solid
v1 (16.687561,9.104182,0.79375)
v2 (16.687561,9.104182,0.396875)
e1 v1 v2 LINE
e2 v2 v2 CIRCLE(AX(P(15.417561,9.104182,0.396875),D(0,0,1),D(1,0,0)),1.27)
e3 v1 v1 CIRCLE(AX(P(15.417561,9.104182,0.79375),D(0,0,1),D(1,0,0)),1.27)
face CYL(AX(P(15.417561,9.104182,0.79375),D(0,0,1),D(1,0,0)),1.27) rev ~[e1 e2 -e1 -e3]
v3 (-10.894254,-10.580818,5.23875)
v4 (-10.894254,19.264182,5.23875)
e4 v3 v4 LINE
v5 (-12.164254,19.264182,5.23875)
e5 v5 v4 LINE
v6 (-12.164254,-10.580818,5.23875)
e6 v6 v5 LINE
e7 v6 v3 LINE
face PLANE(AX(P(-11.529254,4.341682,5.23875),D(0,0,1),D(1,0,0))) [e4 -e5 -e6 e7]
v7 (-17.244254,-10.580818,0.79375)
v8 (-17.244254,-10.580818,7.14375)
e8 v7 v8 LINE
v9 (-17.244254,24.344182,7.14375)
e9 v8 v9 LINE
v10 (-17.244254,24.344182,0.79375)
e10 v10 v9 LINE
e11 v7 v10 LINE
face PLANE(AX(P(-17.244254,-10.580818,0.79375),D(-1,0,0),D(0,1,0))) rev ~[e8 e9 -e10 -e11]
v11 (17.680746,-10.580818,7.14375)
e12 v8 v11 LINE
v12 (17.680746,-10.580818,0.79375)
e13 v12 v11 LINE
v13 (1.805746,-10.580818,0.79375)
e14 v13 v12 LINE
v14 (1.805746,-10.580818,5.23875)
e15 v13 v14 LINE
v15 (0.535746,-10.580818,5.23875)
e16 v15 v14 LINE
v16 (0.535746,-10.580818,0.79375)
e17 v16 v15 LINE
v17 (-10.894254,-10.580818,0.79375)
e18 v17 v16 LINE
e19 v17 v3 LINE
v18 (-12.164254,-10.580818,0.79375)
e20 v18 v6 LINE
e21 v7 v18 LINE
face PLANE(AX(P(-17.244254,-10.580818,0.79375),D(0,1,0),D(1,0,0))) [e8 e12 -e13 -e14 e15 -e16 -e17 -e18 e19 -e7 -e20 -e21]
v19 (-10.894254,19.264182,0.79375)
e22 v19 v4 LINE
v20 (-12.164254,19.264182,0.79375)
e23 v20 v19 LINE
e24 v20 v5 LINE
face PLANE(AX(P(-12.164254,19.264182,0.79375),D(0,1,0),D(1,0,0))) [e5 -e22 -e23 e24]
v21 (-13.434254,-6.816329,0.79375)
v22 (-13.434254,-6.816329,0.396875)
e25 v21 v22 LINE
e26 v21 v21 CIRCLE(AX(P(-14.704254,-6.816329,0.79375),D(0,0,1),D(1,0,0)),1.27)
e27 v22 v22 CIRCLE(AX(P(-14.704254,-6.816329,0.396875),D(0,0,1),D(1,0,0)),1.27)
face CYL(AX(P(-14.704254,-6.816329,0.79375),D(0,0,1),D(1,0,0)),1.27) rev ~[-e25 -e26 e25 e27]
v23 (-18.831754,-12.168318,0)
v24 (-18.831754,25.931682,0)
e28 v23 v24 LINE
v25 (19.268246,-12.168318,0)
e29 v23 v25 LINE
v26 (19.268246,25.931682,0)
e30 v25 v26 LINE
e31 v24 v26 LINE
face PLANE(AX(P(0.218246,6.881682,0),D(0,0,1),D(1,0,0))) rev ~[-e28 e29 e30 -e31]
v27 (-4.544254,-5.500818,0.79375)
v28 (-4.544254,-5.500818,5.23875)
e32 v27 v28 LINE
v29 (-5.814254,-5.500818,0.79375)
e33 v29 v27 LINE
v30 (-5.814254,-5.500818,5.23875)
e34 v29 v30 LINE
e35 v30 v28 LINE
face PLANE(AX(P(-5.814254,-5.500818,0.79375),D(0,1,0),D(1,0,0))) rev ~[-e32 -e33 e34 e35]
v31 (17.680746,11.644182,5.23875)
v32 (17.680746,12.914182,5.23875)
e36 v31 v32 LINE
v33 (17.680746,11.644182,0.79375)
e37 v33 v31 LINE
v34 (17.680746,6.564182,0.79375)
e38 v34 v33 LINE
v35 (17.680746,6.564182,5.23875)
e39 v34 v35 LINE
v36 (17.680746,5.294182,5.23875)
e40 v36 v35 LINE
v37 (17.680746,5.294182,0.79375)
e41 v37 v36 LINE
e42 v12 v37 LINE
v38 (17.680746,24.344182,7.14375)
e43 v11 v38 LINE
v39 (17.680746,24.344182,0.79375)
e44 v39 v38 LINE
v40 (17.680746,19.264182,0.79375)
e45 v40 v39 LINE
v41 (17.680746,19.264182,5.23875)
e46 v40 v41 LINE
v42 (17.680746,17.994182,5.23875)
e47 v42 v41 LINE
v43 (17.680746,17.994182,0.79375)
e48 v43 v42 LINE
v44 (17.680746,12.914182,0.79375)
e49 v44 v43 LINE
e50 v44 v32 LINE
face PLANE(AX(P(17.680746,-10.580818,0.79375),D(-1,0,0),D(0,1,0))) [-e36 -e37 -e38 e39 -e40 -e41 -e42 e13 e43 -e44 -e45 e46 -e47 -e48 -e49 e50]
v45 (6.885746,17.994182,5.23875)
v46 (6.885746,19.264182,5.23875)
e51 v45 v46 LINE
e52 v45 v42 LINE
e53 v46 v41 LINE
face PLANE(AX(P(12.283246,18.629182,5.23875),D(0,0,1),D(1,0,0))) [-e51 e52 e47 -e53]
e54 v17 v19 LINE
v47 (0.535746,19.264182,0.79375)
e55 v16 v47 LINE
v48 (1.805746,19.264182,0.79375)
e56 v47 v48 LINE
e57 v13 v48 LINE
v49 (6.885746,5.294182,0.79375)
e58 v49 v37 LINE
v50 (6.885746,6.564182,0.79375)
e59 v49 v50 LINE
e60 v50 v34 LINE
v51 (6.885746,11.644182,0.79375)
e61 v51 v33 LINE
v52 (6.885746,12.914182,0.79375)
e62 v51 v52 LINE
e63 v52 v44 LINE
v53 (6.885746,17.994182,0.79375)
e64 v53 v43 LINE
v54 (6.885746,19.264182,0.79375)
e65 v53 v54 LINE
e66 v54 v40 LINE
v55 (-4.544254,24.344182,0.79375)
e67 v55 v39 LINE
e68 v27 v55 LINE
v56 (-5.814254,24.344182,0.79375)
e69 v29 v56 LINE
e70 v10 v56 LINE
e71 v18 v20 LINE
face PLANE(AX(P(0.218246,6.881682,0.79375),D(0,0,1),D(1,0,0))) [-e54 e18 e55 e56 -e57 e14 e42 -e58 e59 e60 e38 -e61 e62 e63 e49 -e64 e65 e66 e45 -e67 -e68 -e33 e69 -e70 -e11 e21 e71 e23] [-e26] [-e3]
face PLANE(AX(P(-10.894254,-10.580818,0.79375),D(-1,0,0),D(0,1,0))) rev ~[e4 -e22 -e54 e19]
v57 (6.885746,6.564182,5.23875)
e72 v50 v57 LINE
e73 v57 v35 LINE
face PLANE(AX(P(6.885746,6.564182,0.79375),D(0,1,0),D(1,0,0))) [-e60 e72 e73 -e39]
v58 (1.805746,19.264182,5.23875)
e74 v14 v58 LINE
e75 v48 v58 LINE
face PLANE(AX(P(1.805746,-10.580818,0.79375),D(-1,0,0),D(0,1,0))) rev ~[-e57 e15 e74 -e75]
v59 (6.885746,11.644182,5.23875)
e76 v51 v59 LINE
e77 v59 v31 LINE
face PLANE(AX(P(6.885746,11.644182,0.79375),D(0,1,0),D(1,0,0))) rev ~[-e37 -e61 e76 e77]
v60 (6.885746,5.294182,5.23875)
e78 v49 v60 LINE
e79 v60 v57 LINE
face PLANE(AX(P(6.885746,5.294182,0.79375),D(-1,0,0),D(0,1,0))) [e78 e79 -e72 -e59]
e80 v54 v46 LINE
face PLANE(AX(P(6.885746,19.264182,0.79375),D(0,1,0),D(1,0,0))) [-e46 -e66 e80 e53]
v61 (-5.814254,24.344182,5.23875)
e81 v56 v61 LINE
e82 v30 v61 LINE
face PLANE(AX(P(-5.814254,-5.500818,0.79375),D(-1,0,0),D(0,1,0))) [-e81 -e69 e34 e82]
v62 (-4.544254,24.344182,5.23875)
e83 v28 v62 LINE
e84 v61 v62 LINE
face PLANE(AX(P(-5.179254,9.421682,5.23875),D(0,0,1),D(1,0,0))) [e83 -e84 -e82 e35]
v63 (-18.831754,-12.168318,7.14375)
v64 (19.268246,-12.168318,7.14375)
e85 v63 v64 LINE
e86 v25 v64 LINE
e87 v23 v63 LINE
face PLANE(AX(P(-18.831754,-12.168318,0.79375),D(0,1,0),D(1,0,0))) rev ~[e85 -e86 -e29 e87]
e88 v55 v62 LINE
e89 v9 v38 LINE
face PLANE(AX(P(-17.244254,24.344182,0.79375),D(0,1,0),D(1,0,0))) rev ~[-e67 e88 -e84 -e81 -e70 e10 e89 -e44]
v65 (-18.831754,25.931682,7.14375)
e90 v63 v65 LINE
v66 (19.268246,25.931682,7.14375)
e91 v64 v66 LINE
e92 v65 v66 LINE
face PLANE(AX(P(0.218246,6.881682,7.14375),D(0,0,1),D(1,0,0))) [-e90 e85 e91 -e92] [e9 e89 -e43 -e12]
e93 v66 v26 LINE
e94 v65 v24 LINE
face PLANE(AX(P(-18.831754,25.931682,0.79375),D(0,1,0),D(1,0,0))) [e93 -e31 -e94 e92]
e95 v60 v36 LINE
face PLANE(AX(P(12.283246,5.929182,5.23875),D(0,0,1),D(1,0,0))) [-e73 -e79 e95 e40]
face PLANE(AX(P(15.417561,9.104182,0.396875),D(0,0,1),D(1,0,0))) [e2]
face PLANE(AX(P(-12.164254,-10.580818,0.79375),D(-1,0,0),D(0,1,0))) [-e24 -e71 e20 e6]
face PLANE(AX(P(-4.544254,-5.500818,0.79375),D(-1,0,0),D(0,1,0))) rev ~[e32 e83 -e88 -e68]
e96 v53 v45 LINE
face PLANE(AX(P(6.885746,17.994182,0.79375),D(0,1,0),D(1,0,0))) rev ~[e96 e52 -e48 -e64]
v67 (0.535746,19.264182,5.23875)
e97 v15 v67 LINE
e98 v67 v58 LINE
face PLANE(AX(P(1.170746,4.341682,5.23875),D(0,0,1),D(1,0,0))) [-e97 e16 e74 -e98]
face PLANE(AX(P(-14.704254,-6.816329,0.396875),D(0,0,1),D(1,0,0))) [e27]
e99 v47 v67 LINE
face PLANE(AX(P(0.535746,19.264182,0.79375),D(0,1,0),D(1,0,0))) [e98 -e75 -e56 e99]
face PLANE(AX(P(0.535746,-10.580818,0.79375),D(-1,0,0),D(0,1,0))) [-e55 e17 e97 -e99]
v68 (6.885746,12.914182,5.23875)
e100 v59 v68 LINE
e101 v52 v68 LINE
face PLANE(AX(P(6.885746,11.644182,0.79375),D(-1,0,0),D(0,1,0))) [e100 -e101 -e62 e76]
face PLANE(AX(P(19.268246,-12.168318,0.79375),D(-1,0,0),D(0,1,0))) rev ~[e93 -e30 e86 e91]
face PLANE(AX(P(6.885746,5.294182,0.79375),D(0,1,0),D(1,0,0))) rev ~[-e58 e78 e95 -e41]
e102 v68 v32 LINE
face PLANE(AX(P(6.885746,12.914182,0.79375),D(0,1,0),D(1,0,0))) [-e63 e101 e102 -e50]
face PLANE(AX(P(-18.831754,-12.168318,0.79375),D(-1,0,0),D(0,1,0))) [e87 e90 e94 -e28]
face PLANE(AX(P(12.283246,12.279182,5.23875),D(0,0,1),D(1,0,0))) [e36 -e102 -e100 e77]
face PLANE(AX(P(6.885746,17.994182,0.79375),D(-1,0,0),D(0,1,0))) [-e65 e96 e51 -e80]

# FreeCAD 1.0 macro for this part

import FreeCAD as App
import Part
import Sketcher
from FreeCAD import Vector
Q = App.Units.Quantity

doc = App.newDocument("Part")
body = doc.addObject("PartDesign::Body", "Body")

# Sketch on XY plane
sketch1 = body.newObject("Sketcher::SketchObject", "Sketch")
sketch1.AttachmentSupport = (doc.getObject("XY_Plane"), [""])
sketch1.MapMode = "FlatFace"
sketch1.addGeometry([
    Part.LineSegment(Vector(-19, 26, 0), Vector(-19, -12, 0)),
    Part.LineSegment(Vector(-19, -12, 0), Vector(19, -12, 0)),
    Part.LineSegment(Vector(19, -12, 0), Vector(19, 26, 0)),
    Part.LineSegment(Vector(19, 26, 0), Vector(-19, 26, 0)),
], False)
sketch1.addConstraint([
    Sketcher.Constraint("Coincident", 0, 2, 1, 1),
    Sketcher.Constraint("Coincident", 1, 2, 2, 1),
    Sketcher.Constraint("Coincident", 2, 2, 3, 1),
    Sketcher.Constraint("Coincident", 3, 2, 0, 1),
    Sketcher.Constraint("Vertical", 0),
    Sketcher.Constraint("Horizontal", 1),
    Sketcher.Constraint("Vertical", 2),
    Sketcher.Constraint("Horizontal", 3),
    Sketcher.Constraint("Equal", 3, 0),
    Sketcher.Constraint("DistanceX", 1, 1, 1, 2, Q("1.5 in")),
    Sketcher.Constraint("DistanceY", -1, 1, 2, 2, 25.931682),
    Sketcher.Constraint("DistanceX", 0, 2, -1, 1, 18.831754),
])
pad1 = body.newObject("PartDesign::Pad", "Pad")
pad1.Profile = sketch1
pad1.Length = Q("0.03125 in")

# Sketch on XY plane
sketch2 = body.newObject("Sketcher::SketchObject", "Sketch001")
sketch2.AttachmentSupport = (doc.getObject("XY_Plane"), [""])
sketch2.MapMode = "FlatFace"
sketch2.AttachmentOffset = App.Placement(Vector(0, 0, 0.03125 * 25.4), App.Rotation())
sketch2.addGeometry([
    Part.LineSegment(Vector(-19, 26, 0), Vector(-19, -12, 0)),  # 0
    Part.LineSegment(Vector(-19, -12, 0), Vector(19, -12, 0)),  # 1
    Part.LineSegment(Vector(19, -12, 0), Vector(19, 26, 0)),  # 2
    Part.LineSegment(Vector(19, 26, 0), Vector(-19, 26, 0)),  # 3
    Part.LineSegment(Vector(18, -11, 0), Vector(-17, -11, 0)),  # 4
    Part.LineSegment(Vector(-17, -11, 0), Vector(-17, 24, 0)),  # 5
    Part.LineSegment(Vector(-17, 24, 0), Vector(18, 24, 0)),  # 6
    Part.LineSegment(Vector(18, 24, 0), Vector(18, -11, 0)),  # 7
], False)
sketch2.addConstraint([
    Sketcher.Constraint("Coincident", 0, 2, 1, 1),
    Sketcher.Constraint("Coincident", 1, 2, 2, 1),
    Sketcher.Constraint("Coincident", 2, 2, 3, 1),
    Sketcher.Constraint("Coincident", 3, 2, 0, 1),
    Sketcher.Constraint("Coincident", 4, 2, 5, 1),
    Sketcher.Constraint("Coincident", 5, 2, 6, 1),
    Sketcher.Constraint("Coincident", 6, 2, 7, 1),
    Sketcher.Constraint("Coincident", 7, 2, 4, 1),
    Sketcher.Constraint("Vertical", 0),
    Sketcher.Constraint("Horizontal", 1),
    Sketcher.Constraint("Vertical", 2),
    Sketcher.Constraint("Horizontal", 3),
    Sketcher.Constraint("Horizontal", 4),
    Sketcher.Constraint("Vertical", 5),
    Sketcher.Constraint("Horizontal", 6),
    Sketcher.Constraint("Vertical", 7),
    Sketcher.Constraint("Equal", 3, 0),
    Sketcher.Constraint("Equal", 6, 5),
    Sketcher.Constraint("DistanceX", 1, 1, 1, 2, Q("1.5 in")),
    Sketcher.Constraint("DistanceX", 4, 2, 4, 1, Q("1.375 in")),
    Sketcher.Constraint("DistanceX", 0, 2, 4, 2, Q("0.0625 in")),
    Sketcher.Constraint("DistanceY", 0, 2, 4, 2, Q("0.0625 in")),
    Sketcher.Constraint("DistanceY", -1, 1, 2, 2, 25.931682),
    Sketcher.Constraint("DistanceX", 0, 2, -1, 1, 18.831754),
])
pad2 = body.newObject("PartDesign::Pad", "Pad001")
pad2.Profile = sketch2
pad2.Length = Q("0.25 in")

# Sketch on XY plane
sketch3 = body.newObject("Sketcher::SketchObject", "Sketch002")
sketch3.AttachmentSupport = (doc.getObject("XY_Plane"), [""])
sketch3.MapMode = "FlatFace"
sketch3.AttachmentOffset = App.Placement(Vector(0, 0, 0.03125 * 25.4), App.Rotation())
sketch3.addGeometry([
    Part.LineSegment(Vector(-12.2, 19.3, 0), Vector(-12.2, -10.6, 0)),  # 0
    Part.LineSegment(Vector(-12.2, -10.6, 0), Vector(-10.9, -10.6, 0)),  # 1
    Part.LineSegment(Vector(-10.9, -10.6, 0), Vector(-10.9, 19.3, 0)),  # 2
    Part.LineSegment(Vector(-10.9, 19.3, 0), Vector(-12.2, 19.3, 0)),  # 3
    Part.LineSegment(Vector(-5.8, 24.3, 0), Vector(-5.8, -5.5, 0)),  # 4
    Part.LineSegment(Vector(-5.8, -5.5, 0), Vector(-4.5, -5.5, 0)),  # 5
    Part.LineSegment(Vector(-4.5, -5.5, 0), Vector(-4.5, 24.3, 0)),  # 6
    Part.LineSegment(Vector(-4.5, 24.3, 0), Vector(-5.8, 24.3, 0)),  # 7
    Part.LineSegment(Vector(0.5, 19.3, 0), Vector(0.5, -10.6, 0)),  # 8
    Part.LineSegment(Vector(0.5, -10.6, 0), Vector(1.8, -10.6, 0)),  # 9
    Part.LineSegment(Vector(1.8, -10.6, 0), Vector(1.8, 19.3, 0)),  # 10
    Part.LineSegment(Vector(1.8, 19.3, 0), Vector(0.5, 19.3, 0)),  # 11
    Part.LineSegment(Vector(6.9, 12.9, 0), Vector(6.9, 11.6, 0)),  # 12
    Part.LineSegment(Vector(6.9, 11.6, 0), Vector(17.7, 11.6, 0)),  # 13
    Part.LineSegment(Vector(17.7, 11.6, 0), Vector(17.7, 12.9, 0)),  # 14
    Part.LineSegment(Vector(17.7, 12.9, 0), Vector(6.9, 12.9, 0)),  # 15
    Part.LineSegment(Vector(6.9, 19.3, 0), Vector(6.9, 18, 0)),  # 16
    Part.LineSegment(Vector(6.9, 18, 0), Vector(17.7, 18, 0)),  # 17
    Part.LineSegment(Vector(17.7, 18, 0), Vector(17.7, 19.3, 0)),  # 18
    Part.LineSegment(Vector(17.7, 19.3, 0), Vector(6.9, 19.3, 0)),  # 19
], False)
sketch3.addConstraint([
    Sketcher.Constraint("Coincident", 0, 2, 1, 1),
    Sketcher.Constraint("Coincident", 1, 2, 2, 1),
    Sketcher.Constraint("Coincident", 2, 2, 3, 1),
    Sketcher.Constraint("Coincident", 3, 2, 0, 1),
    Sketcher.Constraint("Coincident", 4, 2, 5, 1),
    Sketcher.Constraint("Coincident", 5, 2, 6, 1),
    Sketcher.Constraint("Coincident", 6, 2, 7, 1),
    Sketcher.Constraint("Coincident", 7, 2, 4, 1),
    Sketcher.Constraint("Coincident", 8, 2, 9, 1),
    Sketcher.Constraint("Coincident", 9, 2, 10, 1),
    Sketcher.Constraint("Coincident", 10, 2, 11, 1),
    Sketcher.Constraint("Coincident", 11, 2, 8, 1),
    Sketcher.Constraint("Coincident", 12, 2, 13, 1),
    Sketcher.Constraint("Coincident", 13, 2, 14, 1),
    Sketcher.Constraint("Coincident", 14, 2, 15, 1),
    Sketcher.Constraint("Coincident", 15, 2, 12, 1),
    Sketcher.Constraint("Coincident", 16, 2, 17, 1),
    Sketcher.Constraint("Coincident", 17, 2, 18, 1),
    Sketcher.Constraint("Coincident", 18, 2, 19, 1),
    Sketcher.Constraint("Coincident", 19, 2, 16, 1),
    Sketcher.Constraint("Vertical", 0),
    Sketcher.Constraint("Horizontal", 1),
    Sketcher.Constraint("Vertical", 2),
    Sketcher.Constraint("Horizontal", 3),
    Sketcher.Constraint("Vertical", 4),
    Sketcher.Constraint("Horizontal", 5),
    Sketcher.Constraint("Vertical", 6),
    Sketcher.Constraint("Horizontal", 7),
    Sketcher.Constraint("Vertical", 8),
    Sketcher.Constraint("Horizontal", 9),
    Sketcher.Constraint("Vertical", 10),
    Sketcher.Constraint("Horizontal", 11),
    Sketcher.Constraint("Vertical", 12),
    Sketcher.Constraint("Horizontal", 13),
    Sketcher.Constraint("Vertical", 14),
    Sketcher.Constraint("Horizontal", 15),
    Sketcher.Constraint("Vertical", 16),
    Sketcher.Constraint("Horizontal", 17),
    Sketcher.Constraint("Vertical", 18),
    Sketcher.Constraint("Horizontal", 19),
    Sketcher.Constraint("Horizontal", 1, 2, 8, 2),
    Sketcher.Constraint("Horizontal", 3, 2, 10, 2),
    Sketcher.Constraint("Horizontal", 11, 2, 18, 2),
    Sketcher.Constraint("Vertical", 15, 2, 16, 2),
    Sketcher.Constraint("Vertical", 14, 2, 17, 2),
    Sketcher.Constraint("Equal", 3, 5),
    Sketcher.Constraint("Equal", 7, 9),
    Sketcher.Constraint("Equal", 2, 4),
    Sketcher.Constraint("Equal", 11, 12),
    Sketcher.Constraint("Equal", 14, 16),
    Sketcher.Constraint("DistanceX", 1, 1, 1, 2, Q("0.05 in")),
    Sketcher.Constraint("DistanceX", 1, 2, 4, 2, Q("0.2 in")),
    Sketcher.Constraint("DistanceY", 1, 2, 4, 2, Q("0.2 in")),
    Sketcher.Constraint("DistanceX", 5, 2, 8, 2, Q("0.2 in")),
    Sketcher.Constraint("DistanceX", 10, 2, 12, 2, Q("0.2 in")),
    Sketcher.Constraint("DistanceY", 12, 2, 10, 2, Q("0.3 in")),
    Sketcher.Constraint("DistanceX", 13, 1, 13, 2, Q("0.425 in")),
    Sketcher.Constraint("DistanceY", 0, 2, 0, 1, Q("1.175 in")),
    Sketcher.Constraint("DistanceY", 0, 2, -1, 1, 10.580818),
    Sketcher.Constraint("DistanceX", 0, 2, -1, 1, 12.164254),
])
pad3 = body.newObject("PartDesign::Pad", "Pad002")
pad3.Profile = sketch3
pad3.Length = Q("0.175 in")

# Sketch on XY plane
sketch4 = body.newObject("Sketcher::SketchObject", "Sketch003")
sketch4.AttachmentSupport = (doc.getObject("XY_Plane"), [""])
sketch4.MapMode = "FlatFace"
sketch4.AttachmentOffset = App.Placement(Vector(0, 0, 0.03125 * 25.4), App.Rotation())
sketch4.addGeometry([
    Part.LineSegment(Vector(6.9, 6.6, 0), Vector(6.9, 5.3, 0)),
    Part.LineSegment(Vector(6.9, 5.3, 0), Vector(17.7, 5.3, 0)),
    Part.LineSegment(Vector(17.7, 5.3, 0), Vector(17.7, 6.6, 0)),
    Part.LineSegment(Vector(17.7, 6.6, 0), Vector(6.9, 6.6, 0)),
], False)
sketch4.addConstraint([
    Sketcher.Constraint("Coincident", 0, 2, 1, 1),
    Sketcher.Constraint("Coincident", 1, 2, 2, 1),
    Sketcher.Constraint("Coincident", 2, 2, 3, 1),
    Sketcher.Constraint("Coincident", 3, 2, 0, 1),
    Sketcher.Constraint("Vertical", 0),
    Sketcher.Constraint("Horizontal", 1),
    Sketcher.Constraint("Vertical", 2),
    Sketcher.Constraint("Horizontal", 3),
    Sketcher.Constraint("DistanceY", 0, 2, 0, 1, Q("0.05 in")),
    Sketcher.Constraint("DistanceX", 1, 1, 1, 2, Q("0.425 in")),
    Sketcher.Constraint("DistanceY", -1, 1, 2, 2, 6.564182),
    Sketcher.Constraint("DistanceX", -1, 1, 0, 2, 6.885746),
])
pad4 = body.newObject("PartDesign::Pad", "Pad003")
pad4.Profile = sketch4
pad4.Length = Q("0.175 in")

# Sketch on XY plane
sketch5 = body.newObject("Sketcher::SketchObject", "Sketch004")
sketch5.AttachmentSupport = (doc.getObject("XY_Plane"), [""])
sketch5.MapMode = "FlatFace"
sketch5.AttachmentOffset = App.Placement(Vector(0, 0, 0.03125 * 25.4), App.Rotation())
sketch5.addGeometry(Part.Circle(Vector(-14.7, -6.8, 0), Vector(0, 0, 1), 1.3), False)
sketch5.addConstraint([
    Sketcher.Constraint("Diameter", 0, Q("0.1 in")),
    Sketcher.Constraint("DistanceY", 0, 3, -1, 1, 6.816329),
    Sketcher.Constraint("DistanceX", 0, 3, -1, 1, 14.704254),
])
pocket1 = body.newObject("PartDesign::Pocket", "Pocket")
pocket1.Profile = sketch5
pocket1.Length = Q("0.015625 in")
pocket1.Reversed = True

# Sketch on XY plane
sketch6 = body.newObject("Sketcher::SketchObject", "Sketch005")
sketch6.AttachmentSupport = (doc.getObject("XY_Plane"), [""])
sketch6.MapMode = "FlatFace"
sketch6.AttachmentOffset = App.Placement(Vector(0, 0, 0.03125 * 25.4), App.Rotation())
sketch6.addGeometry(Part.Circle(Vector(15.4, 9.1, 0), Vector(0, 0, 1), 1.3), False)
sketch6.addConstraint([
    Sketcher.Constraint("Diameter", 0, Q("0.1 in")),
    Sketcher.Constraint("DistanceX", -1, 1, 0, 3, 15.417561),
    Sketcher.Constraint("DistanceY", -1, 1, 0, 3, 9.104182),
])
pocket2 = body.newObject("PartDesign::Pocket", "Pocket001")
pocket2.Profile = sketch6
pocket2.Length = Q("0.015625 in")

# Sketch on XY plane
sketch7 = body.newObject("Sketcher::SketchObject", "Sketch006")
sketch7.AttachmentSupport = (doc.getObject("XY_Plane"), [""])
sketch7.MapMode = "FlatFace"
sketch7.AttachmentOffset = App.Placement(Vector(0, 0, 0.03125 * 25.4), App.Rotation())
sketch7.addGeometry(Part.Circle(Vector(-14.7, -6.8, 0), Vector(0, 0, 1), 1.3), False)
sketch7.addConstraint([
    Sketcher.Constraint("Diameter", 0, Q("0.1 in")),
    Sketcher.Constraint("DistanceY", 0, 3, -1, 1, 6.816329),
    Sketcher.Constraint("DistanceX", 0, 3, -1, 1, 14.704254),
])
pocket3 = body.newObject("PartDesign::Pocket", "Pocket002")
pocket3.Profile = sketch7
pocket3.Length = Q("0.015625 in")

doc.recompute()
